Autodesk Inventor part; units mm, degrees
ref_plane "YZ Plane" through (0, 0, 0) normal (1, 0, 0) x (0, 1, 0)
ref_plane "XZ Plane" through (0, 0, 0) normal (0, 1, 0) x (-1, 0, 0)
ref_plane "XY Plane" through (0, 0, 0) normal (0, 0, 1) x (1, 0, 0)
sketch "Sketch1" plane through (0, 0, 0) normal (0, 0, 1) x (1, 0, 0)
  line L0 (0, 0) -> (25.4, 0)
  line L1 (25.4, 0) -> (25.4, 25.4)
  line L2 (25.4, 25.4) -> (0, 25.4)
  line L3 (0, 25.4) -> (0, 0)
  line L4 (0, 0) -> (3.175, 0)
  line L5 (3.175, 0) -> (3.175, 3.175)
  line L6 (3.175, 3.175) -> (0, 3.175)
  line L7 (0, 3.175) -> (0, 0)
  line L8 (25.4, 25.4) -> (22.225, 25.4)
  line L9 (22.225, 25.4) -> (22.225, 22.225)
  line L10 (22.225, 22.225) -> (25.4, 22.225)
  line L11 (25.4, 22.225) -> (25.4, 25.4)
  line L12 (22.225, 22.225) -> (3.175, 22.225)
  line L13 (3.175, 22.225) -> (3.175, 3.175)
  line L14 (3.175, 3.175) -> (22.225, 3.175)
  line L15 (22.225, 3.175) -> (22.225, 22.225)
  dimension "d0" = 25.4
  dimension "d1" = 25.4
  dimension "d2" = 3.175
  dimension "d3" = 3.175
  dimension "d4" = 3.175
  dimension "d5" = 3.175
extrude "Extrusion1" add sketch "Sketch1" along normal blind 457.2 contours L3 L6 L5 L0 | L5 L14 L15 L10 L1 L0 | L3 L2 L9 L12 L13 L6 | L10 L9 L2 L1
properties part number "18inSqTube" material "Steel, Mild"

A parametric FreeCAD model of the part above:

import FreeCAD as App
import Part
import Sketcher

V = App.Vector
Q = App.Units.Quantity


def add_polygon(sketch, points):
    """Adds a closed chain of lines whose ends are joined by coincident constraints."""
    first, n = sketch.GeometryCount, len(points)
    for a, b in zip(points, points[1:] + points[:1]):
        sketch.addGeometry(Part.LineSegment(App.Vector(*a, 0), App.Vector(*b, 0)), False)
    for i in range(n):
        sketch.addConstraint(Sketcher.Constraint("Coincident", first + i, 2, first + (i + 1) % n, 1))

doc = App.newDocument("Part")
body = doc.addObject("PartDesign::Body", "Body")

# Sketch on XY plane
sketch1 = doc.addObject("Sketcher::SketchObject", "Sketch")
body.addObject(sketch1)
sketch1.AttachmentSupport = (doc.XY_Plane, [""])
sketch1.MapMode = "FlatFace"
add_polygon(sketch1, [(0, 0), (25, 0), (25, 25), (0, 25)])  # lines 0-3
add_polygon(sketch1, [(3, 22), (22, 22), (22, 3), (3, 3)])  # lines 4-7
sketch1.addConstraint(Sketcher.Constraint("Horizontal", 0))
sketch1.addConstraint(Sketcher.Constraint("Vertical", 1))
sketch1.addConstraint(Sketcher.Constraint("Horizontal", 2))
sketch1.addConstraint(Sketcher.Constraint("Vertical", 3))
sketch1.addConstraint(Sketcher.Constraint("Horizontal", 4))
sketch1.addConstraint(Sketcher.Constraint("Vertical", 5))
sketch1.addConstraint(Sketcher.Constraint("Horizontal", 6))
sketch1.addConstraint(Sketcher.Constraint("Vertical", 7))
sketch1.addConstraint(Sketcher.Constraint("Coincident", 3, 2, -1, 1))
sketch1.addConstraint(Sketcher.Constraint("Equal", 2, 1))
sketch1.addConstraint(Sketcher.Constraint("Equal", 6, 5))
sketch1.addConstraint(Sketcher.Constraint("DistanceX", 0, 1, 0, 2, Q("1 in")))
sketch1.addConstraint(Sketcher.Constraint("DistanceY", -1, 1, 5, 2, Q("0.125 in")))
sketch1.addConstraint(Sketcher.Constraint("DistanceX", -1, 1, 6, 2, Q("0.125 in")))
sketch1.addConstraint(Sketcher.Constraint("DistanceX", 4, 2, 1, 2, Q("0.125 in")))
pad1 = doc.addObject("PartDesign::Pad", "Pad")
body.addObject(pad1)
pad1.Profile = sketch1
pad1.Length = Q("18 in")

doc.recompute()
